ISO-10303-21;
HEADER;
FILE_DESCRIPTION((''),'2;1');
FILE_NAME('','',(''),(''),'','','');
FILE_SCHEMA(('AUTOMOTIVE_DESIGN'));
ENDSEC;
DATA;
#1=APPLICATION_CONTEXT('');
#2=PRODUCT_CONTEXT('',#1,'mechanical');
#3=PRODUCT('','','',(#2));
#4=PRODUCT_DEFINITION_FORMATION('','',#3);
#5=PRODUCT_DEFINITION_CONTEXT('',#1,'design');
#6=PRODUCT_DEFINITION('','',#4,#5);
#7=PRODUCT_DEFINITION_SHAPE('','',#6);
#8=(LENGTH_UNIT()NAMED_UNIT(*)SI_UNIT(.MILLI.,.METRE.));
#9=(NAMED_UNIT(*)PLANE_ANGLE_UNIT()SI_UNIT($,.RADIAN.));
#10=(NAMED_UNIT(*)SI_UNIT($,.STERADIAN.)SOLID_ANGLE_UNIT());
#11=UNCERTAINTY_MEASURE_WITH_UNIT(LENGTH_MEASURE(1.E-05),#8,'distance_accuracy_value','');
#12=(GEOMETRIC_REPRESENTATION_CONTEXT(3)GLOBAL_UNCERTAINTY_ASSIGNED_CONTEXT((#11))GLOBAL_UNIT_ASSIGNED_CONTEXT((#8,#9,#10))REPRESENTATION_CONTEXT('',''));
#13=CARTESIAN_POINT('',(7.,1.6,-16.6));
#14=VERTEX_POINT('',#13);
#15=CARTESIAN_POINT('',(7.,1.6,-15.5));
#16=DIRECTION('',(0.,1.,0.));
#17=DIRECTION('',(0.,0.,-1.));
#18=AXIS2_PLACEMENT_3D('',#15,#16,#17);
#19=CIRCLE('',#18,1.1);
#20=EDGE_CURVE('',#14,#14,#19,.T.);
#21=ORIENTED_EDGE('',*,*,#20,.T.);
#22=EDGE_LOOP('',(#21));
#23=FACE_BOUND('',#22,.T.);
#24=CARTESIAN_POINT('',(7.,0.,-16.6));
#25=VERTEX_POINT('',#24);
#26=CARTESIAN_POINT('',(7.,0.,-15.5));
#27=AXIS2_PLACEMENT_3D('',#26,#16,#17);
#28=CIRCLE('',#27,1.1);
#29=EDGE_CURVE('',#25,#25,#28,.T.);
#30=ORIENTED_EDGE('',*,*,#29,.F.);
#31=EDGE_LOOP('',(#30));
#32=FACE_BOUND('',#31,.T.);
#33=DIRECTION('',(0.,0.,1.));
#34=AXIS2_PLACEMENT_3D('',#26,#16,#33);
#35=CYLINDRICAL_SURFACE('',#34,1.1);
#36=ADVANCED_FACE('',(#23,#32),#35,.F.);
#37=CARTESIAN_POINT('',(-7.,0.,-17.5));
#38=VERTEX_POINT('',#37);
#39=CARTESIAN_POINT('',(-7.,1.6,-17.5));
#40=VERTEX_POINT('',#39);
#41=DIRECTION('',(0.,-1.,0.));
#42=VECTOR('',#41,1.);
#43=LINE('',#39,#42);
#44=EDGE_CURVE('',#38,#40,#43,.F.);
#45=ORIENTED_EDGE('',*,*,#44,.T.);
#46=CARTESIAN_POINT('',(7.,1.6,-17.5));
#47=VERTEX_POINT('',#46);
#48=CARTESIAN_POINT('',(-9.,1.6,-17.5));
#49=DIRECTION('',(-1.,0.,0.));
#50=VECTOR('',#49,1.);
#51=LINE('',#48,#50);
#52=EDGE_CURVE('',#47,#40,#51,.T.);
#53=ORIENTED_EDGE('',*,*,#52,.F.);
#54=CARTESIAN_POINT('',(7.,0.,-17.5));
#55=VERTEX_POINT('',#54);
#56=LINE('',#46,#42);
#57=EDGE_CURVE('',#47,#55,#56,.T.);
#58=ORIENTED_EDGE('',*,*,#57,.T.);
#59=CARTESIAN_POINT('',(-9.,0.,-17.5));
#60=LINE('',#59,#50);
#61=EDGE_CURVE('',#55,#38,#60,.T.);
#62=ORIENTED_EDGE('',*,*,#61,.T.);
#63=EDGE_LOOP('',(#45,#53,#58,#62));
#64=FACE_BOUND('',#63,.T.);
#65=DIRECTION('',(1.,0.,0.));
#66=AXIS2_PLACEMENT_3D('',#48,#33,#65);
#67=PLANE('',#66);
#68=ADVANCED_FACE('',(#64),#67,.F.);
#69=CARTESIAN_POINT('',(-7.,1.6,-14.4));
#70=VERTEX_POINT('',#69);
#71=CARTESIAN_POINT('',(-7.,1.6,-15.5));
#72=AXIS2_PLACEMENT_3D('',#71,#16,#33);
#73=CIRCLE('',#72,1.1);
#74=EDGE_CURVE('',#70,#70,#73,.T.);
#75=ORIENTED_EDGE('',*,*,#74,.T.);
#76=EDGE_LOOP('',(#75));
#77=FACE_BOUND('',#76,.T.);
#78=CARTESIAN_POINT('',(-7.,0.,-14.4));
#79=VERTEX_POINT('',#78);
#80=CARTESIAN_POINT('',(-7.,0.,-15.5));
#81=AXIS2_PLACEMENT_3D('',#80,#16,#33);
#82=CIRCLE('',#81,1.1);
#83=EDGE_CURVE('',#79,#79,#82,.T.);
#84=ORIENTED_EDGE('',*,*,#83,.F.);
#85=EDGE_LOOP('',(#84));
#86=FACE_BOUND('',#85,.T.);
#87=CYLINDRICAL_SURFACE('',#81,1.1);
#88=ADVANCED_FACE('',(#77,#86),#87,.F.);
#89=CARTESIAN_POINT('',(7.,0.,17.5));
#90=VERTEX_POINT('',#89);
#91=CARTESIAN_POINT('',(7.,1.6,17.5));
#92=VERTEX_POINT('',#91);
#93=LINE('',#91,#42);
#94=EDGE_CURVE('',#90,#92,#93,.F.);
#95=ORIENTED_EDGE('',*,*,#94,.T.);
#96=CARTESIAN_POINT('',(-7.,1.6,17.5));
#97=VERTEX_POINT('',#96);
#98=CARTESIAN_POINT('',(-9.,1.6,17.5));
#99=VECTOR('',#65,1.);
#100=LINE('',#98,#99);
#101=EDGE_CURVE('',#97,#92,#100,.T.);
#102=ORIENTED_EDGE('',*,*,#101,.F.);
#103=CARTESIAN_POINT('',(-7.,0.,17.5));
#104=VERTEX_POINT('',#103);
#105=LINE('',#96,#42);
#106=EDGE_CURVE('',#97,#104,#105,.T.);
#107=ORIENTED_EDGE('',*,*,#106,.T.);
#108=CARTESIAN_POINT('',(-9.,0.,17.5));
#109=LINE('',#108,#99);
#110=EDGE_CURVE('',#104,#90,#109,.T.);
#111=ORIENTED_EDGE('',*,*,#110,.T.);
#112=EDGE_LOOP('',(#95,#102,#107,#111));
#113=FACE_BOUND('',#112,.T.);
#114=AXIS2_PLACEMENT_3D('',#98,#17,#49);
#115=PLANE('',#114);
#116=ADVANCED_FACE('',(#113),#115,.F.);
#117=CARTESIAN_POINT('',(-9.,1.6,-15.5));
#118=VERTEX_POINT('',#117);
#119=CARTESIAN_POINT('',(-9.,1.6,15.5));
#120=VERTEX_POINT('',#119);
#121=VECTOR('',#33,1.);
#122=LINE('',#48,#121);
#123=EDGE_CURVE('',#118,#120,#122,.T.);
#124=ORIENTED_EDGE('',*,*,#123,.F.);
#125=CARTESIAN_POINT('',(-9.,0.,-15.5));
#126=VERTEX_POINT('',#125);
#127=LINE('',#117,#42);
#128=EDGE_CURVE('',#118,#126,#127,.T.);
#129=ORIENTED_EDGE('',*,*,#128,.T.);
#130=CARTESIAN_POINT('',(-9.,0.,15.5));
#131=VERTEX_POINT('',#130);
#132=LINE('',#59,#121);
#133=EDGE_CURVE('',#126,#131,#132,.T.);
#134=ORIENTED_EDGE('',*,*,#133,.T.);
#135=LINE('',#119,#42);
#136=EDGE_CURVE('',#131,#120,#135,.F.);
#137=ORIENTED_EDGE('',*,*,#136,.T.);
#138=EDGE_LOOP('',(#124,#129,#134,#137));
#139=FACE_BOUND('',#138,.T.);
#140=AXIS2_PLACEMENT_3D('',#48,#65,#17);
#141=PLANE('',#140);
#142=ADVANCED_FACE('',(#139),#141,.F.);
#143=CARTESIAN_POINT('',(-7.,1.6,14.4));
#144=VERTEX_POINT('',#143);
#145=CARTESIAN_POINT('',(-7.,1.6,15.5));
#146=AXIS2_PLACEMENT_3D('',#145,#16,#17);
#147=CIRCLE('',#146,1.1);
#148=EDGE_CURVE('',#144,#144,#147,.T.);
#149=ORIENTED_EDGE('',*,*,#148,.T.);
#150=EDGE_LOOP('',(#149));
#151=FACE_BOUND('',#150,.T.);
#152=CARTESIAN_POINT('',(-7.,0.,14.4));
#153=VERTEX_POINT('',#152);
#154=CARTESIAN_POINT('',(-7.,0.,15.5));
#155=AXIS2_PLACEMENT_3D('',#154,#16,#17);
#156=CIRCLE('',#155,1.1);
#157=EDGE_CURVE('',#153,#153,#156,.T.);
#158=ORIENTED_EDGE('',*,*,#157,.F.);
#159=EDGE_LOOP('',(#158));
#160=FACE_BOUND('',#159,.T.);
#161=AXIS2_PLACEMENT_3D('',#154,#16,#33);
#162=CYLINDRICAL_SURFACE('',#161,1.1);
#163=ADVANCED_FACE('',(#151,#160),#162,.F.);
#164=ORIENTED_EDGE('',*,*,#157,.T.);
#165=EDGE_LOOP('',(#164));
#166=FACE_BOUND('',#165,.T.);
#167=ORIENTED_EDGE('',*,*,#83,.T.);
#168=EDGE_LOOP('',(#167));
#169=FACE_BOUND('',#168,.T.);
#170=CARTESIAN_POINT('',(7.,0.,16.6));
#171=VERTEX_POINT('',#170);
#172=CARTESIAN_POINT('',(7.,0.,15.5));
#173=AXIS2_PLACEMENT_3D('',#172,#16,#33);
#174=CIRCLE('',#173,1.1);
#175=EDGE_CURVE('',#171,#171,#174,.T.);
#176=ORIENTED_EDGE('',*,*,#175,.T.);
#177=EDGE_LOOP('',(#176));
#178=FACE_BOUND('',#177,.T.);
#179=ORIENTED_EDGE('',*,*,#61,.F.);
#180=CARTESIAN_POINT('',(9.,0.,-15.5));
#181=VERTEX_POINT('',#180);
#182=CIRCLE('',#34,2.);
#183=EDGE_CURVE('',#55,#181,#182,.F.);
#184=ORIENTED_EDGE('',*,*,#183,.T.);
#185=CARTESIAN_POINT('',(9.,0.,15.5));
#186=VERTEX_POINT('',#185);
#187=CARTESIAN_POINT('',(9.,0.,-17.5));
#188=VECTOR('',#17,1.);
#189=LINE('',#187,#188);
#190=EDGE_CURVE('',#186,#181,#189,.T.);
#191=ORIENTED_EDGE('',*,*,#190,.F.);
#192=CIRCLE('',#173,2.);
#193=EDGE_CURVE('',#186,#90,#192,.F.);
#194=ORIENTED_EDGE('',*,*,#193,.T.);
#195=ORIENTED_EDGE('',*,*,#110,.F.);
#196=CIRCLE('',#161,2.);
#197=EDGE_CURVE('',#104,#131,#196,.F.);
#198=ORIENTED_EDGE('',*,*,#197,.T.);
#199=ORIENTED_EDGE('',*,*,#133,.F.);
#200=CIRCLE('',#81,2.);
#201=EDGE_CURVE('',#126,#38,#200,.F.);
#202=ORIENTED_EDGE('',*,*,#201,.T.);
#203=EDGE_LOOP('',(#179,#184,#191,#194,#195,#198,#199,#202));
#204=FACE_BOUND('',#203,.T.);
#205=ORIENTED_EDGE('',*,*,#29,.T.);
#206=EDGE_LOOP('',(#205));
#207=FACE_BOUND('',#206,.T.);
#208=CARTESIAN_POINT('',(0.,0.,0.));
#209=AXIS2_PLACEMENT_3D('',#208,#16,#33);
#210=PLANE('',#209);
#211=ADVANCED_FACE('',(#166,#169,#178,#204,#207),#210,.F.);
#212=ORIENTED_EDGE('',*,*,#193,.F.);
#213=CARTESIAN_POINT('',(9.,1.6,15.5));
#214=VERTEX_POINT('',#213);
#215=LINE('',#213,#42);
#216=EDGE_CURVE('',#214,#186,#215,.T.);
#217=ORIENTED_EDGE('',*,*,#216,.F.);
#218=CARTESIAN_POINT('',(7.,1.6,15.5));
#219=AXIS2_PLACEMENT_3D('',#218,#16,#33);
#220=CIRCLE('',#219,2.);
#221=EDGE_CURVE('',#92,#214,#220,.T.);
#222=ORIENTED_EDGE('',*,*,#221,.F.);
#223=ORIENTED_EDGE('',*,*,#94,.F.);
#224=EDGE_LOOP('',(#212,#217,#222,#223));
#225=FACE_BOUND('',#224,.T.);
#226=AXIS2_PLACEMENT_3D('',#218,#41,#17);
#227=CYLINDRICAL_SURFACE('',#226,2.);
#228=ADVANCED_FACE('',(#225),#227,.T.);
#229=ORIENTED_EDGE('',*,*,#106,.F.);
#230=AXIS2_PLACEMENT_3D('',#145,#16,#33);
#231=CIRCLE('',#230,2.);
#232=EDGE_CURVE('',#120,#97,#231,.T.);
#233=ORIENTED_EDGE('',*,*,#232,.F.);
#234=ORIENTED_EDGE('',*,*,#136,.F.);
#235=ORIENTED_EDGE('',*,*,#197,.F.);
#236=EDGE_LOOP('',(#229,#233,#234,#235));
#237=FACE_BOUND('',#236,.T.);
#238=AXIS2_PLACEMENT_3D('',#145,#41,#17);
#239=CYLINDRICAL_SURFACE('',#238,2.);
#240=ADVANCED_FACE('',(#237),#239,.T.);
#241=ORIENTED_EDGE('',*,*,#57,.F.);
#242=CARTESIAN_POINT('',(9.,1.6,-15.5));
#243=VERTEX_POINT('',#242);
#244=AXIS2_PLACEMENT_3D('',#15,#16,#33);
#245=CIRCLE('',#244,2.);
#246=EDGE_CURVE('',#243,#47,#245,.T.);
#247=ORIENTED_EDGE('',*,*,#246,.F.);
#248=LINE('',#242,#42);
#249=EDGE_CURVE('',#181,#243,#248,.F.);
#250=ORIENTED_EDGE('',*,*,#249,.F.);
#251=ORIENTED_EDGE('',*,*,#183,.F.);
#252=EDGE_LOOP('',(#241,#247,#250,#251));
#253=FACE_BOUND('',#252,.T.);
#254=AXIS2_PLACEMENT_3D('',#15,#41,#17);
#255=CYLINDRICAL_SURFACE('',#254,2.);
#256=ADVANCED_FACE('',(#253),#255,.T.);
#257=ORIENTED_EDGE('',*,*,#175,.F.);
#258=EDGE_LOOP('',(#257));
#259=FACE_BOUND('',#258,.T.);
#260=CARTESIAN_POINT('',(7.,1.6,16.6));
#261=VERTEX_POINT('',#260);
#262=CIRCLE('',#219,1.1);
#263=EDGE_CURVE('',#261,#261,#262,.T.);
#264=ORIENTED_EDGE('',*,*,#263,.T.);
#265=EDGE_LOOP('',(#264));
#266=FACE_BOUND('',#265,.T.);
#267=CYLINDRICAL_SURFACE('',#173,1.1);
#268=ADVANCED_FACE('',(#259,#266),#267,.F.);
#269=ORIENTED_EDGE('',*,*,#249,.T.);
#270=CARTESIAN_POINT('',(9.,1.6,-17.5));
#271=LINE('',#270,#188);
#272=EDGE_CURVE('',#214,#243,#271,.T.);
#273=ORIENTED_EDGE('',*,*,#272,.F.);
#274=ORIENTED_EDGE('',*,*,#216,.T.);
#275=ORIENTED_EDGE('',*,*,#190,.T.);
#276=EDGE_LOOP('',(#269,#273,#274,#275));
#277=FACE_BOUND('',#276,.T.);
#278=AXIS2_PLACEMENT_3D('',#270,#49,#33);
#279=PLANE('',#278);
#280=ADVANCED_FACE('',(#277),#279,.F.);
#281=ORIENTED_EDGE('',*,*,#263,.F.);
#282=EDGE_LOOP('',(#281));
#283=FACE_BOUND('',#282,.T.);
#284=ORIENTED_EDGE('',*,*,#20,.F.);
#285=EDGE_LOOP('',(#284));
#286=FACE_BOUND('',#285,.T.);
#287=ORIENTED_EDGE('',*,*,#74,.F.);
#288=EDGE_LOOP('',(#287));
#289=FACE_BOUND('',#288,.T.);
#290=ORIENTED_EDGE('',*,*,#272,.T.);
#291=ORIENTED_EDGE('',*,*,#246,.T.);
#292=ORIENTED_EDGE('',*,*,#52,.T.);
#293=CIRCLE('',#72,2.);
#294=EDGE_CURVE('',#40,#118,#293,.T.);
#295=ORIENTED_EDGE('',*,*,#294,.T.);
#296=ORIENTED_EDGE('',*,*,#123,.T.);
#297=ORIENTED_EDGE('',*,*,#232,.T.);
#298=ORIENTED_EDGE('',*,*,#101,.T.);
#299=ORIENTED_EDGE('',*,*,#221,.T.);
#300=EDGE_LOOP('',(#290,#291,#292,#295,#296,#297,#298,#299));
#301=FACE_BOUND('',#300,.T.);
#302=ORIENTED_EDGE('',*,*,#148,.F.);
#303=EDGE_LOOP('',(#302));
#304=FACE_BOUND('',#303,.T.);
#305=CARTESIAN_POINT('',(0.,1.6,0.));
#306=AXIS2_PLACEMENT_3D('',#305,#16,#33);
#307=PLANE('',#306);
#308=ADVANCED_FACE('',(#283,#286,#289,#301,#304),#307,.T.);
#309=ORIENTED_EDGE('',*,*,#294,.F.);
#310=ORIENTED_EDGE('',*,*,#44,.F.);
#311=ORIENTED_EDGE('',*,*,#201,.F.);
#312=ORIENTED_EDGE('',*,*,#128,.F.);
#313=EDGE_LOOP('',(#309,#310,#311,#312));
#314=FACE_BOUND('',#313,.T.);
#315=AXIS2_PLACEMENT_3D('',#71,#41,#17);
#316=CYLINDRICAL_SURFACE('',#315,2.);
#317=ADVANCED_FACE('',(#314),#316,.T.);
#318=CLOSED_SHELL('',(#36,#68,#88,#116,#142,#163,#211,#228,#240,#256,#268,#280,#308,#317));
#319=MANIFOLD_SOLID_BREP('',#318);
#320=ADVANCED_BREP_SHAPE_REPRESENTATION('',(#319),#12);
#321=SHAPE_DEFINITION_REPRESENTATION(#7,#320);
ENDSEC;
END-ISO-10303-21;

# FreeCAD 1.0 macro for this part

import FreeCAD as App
import Part
import Sketcher

V = App.Vector
Q = App.Units.Quantity


def edges_at(feature, points):
    """Names of the edges that pass closest to the given points."""
    edges = feature.Shape.Edges
    near = lambda p: min(range(len(edges)), key=lambda i: edges[i].distToShape(Part.Vertex(*p))[0])
    return sorted({f"Edge{near(p) + 1}" for p in points})

doc = App.newDocument("Part")
body = doc.addObject("PartDesign::Body", "Body")

# Sketch on XZ plane
sketch1 = doc.addObject("Sketcher::SketchObject", "Sketch")
body.addObject(sketch1)
sketch1.AttachmentSupport = (doc.XZ_Plane, [""])
sketch1.MapMode = "FlatFace"
sketch1.addGeometry([
    Part.LineSegment(V(-9, -17.5, 0), V(-9, 17.5, 0)),
    Part.LineSegment(V(-9, 17.5, 0), V(9, 17.5, 0)),
    Part.LineSegment(V(9, 17.5, 0), V(9, -17.5, 0)),
    Part.LineSegment(V(9, -17.5, 0), V(-9, -17.5, 0)),
], False)
sketch1.addConstraint([
    Sketcher.Constraint("Coincident", 0, 2, 1, 1),
    Sketcher.Constraint("Coincident", 1, 2, 2, 1),
    Sketcher.Constraint("Coincident", 2, 2, 3, 1),
    Sketcher.Constraint("Coincident", 3, 2, 0, 1),
    Sketcher.Constraint("Vertical", 0),
    Sketcher.Constraint("Horizontal", 1),
    Sketcher.Constraint("Vertical", 2),
    Sketcher.Constraint("Horizontal", 3),
    Sketcher.Constraint("Symmetric", 0, 2, 2, 2, -1, 1),
    Sketcher.Constraint("DistanceX", 1, 1, 1, 2, Q("18 mm")),
    Sketcher.Constraint("DistanceY", 0, 1, 0, 2, Q("35 mm")),
])
pad1 = doc.addObject("PartDesign::Pad", "Pad")
body.addObject(pad1)
pad1.Profile = sketch1
pad1.Length = 1.6
pad1.Reversed = True

# Sketch on XZ plane
sketch2 = doc.addObject("Sketcher::SketchObject", "Sketch001")
body.addObject(sketch2)
sketch2.AttachmentSupport = (doc.XZ_Plane, [""])
sketch2.MapMode = "FlatFace"
sketch2.AttachmentOffset = App.Placement(V(0, 0, -1.6), App.Rotation())
sketch2.addGeometry([
    Part.Circle(V(-7, -15.5, 0), V(0, 0, 1), 1.1),
    Part.Circle(V(7, -15.5, 0), V(0, 0, 1), 1.1),
    Part.Circle(V(7, 15.5, 0), V(0, 0, 1), 1.1),
    Part.Circle(V(-7, 15.5, 0), V(0, 0, 1), 1.1),
], False)
sketch2.addConstraint([
    Sketcher.Constraint("Equal", 0, 1),
    Sketcher.Constraint("Equal", 1, 2),
    Sketcher.Constraint("Equal", 2, 3),
    Sketcher.Constraint("Symmetric", 0, 3, 2, 3, -1, 1),
    Sketcher.Constraint("Symmetric", 1, 3, 3, 3, -1, 1),
    Sketcher.Constraint("Symmetric", 0, 3, 1, 3, -2),
    Sketcher.Constraint("Diameter", 0, Q("2.2 mm")),
    Sketcher.Constraint("DistanceX", 0, 3, -1, 1, Q("7 mm")),
    Sketcher.Constraint("DistanceY", 1, 3, 2, 3, Q("31 mm")),
])
pocket1 = doc.addObject("PartDesign::Pocket", "Pocket")
body.addObject(pocket1)
pocket1.Profile = sketch2
pocket1.Type = "ThroughAll"
pocket1.Reversed = True
doc.recompute()

fillet = doc.addObject("PartDesign::Fillet", "Fillet")
body.addObject(fillet)
fillet.Base = (pocket1, edges_at(pocket1, [
    (9, 0.8, 17.5),
    (-9, 0.8, 17.5),
    (-9, 0.8, -17.5),
    (9, 0.8, -17.5),
]))
fillet.Radius = 2

doc.recompute()
